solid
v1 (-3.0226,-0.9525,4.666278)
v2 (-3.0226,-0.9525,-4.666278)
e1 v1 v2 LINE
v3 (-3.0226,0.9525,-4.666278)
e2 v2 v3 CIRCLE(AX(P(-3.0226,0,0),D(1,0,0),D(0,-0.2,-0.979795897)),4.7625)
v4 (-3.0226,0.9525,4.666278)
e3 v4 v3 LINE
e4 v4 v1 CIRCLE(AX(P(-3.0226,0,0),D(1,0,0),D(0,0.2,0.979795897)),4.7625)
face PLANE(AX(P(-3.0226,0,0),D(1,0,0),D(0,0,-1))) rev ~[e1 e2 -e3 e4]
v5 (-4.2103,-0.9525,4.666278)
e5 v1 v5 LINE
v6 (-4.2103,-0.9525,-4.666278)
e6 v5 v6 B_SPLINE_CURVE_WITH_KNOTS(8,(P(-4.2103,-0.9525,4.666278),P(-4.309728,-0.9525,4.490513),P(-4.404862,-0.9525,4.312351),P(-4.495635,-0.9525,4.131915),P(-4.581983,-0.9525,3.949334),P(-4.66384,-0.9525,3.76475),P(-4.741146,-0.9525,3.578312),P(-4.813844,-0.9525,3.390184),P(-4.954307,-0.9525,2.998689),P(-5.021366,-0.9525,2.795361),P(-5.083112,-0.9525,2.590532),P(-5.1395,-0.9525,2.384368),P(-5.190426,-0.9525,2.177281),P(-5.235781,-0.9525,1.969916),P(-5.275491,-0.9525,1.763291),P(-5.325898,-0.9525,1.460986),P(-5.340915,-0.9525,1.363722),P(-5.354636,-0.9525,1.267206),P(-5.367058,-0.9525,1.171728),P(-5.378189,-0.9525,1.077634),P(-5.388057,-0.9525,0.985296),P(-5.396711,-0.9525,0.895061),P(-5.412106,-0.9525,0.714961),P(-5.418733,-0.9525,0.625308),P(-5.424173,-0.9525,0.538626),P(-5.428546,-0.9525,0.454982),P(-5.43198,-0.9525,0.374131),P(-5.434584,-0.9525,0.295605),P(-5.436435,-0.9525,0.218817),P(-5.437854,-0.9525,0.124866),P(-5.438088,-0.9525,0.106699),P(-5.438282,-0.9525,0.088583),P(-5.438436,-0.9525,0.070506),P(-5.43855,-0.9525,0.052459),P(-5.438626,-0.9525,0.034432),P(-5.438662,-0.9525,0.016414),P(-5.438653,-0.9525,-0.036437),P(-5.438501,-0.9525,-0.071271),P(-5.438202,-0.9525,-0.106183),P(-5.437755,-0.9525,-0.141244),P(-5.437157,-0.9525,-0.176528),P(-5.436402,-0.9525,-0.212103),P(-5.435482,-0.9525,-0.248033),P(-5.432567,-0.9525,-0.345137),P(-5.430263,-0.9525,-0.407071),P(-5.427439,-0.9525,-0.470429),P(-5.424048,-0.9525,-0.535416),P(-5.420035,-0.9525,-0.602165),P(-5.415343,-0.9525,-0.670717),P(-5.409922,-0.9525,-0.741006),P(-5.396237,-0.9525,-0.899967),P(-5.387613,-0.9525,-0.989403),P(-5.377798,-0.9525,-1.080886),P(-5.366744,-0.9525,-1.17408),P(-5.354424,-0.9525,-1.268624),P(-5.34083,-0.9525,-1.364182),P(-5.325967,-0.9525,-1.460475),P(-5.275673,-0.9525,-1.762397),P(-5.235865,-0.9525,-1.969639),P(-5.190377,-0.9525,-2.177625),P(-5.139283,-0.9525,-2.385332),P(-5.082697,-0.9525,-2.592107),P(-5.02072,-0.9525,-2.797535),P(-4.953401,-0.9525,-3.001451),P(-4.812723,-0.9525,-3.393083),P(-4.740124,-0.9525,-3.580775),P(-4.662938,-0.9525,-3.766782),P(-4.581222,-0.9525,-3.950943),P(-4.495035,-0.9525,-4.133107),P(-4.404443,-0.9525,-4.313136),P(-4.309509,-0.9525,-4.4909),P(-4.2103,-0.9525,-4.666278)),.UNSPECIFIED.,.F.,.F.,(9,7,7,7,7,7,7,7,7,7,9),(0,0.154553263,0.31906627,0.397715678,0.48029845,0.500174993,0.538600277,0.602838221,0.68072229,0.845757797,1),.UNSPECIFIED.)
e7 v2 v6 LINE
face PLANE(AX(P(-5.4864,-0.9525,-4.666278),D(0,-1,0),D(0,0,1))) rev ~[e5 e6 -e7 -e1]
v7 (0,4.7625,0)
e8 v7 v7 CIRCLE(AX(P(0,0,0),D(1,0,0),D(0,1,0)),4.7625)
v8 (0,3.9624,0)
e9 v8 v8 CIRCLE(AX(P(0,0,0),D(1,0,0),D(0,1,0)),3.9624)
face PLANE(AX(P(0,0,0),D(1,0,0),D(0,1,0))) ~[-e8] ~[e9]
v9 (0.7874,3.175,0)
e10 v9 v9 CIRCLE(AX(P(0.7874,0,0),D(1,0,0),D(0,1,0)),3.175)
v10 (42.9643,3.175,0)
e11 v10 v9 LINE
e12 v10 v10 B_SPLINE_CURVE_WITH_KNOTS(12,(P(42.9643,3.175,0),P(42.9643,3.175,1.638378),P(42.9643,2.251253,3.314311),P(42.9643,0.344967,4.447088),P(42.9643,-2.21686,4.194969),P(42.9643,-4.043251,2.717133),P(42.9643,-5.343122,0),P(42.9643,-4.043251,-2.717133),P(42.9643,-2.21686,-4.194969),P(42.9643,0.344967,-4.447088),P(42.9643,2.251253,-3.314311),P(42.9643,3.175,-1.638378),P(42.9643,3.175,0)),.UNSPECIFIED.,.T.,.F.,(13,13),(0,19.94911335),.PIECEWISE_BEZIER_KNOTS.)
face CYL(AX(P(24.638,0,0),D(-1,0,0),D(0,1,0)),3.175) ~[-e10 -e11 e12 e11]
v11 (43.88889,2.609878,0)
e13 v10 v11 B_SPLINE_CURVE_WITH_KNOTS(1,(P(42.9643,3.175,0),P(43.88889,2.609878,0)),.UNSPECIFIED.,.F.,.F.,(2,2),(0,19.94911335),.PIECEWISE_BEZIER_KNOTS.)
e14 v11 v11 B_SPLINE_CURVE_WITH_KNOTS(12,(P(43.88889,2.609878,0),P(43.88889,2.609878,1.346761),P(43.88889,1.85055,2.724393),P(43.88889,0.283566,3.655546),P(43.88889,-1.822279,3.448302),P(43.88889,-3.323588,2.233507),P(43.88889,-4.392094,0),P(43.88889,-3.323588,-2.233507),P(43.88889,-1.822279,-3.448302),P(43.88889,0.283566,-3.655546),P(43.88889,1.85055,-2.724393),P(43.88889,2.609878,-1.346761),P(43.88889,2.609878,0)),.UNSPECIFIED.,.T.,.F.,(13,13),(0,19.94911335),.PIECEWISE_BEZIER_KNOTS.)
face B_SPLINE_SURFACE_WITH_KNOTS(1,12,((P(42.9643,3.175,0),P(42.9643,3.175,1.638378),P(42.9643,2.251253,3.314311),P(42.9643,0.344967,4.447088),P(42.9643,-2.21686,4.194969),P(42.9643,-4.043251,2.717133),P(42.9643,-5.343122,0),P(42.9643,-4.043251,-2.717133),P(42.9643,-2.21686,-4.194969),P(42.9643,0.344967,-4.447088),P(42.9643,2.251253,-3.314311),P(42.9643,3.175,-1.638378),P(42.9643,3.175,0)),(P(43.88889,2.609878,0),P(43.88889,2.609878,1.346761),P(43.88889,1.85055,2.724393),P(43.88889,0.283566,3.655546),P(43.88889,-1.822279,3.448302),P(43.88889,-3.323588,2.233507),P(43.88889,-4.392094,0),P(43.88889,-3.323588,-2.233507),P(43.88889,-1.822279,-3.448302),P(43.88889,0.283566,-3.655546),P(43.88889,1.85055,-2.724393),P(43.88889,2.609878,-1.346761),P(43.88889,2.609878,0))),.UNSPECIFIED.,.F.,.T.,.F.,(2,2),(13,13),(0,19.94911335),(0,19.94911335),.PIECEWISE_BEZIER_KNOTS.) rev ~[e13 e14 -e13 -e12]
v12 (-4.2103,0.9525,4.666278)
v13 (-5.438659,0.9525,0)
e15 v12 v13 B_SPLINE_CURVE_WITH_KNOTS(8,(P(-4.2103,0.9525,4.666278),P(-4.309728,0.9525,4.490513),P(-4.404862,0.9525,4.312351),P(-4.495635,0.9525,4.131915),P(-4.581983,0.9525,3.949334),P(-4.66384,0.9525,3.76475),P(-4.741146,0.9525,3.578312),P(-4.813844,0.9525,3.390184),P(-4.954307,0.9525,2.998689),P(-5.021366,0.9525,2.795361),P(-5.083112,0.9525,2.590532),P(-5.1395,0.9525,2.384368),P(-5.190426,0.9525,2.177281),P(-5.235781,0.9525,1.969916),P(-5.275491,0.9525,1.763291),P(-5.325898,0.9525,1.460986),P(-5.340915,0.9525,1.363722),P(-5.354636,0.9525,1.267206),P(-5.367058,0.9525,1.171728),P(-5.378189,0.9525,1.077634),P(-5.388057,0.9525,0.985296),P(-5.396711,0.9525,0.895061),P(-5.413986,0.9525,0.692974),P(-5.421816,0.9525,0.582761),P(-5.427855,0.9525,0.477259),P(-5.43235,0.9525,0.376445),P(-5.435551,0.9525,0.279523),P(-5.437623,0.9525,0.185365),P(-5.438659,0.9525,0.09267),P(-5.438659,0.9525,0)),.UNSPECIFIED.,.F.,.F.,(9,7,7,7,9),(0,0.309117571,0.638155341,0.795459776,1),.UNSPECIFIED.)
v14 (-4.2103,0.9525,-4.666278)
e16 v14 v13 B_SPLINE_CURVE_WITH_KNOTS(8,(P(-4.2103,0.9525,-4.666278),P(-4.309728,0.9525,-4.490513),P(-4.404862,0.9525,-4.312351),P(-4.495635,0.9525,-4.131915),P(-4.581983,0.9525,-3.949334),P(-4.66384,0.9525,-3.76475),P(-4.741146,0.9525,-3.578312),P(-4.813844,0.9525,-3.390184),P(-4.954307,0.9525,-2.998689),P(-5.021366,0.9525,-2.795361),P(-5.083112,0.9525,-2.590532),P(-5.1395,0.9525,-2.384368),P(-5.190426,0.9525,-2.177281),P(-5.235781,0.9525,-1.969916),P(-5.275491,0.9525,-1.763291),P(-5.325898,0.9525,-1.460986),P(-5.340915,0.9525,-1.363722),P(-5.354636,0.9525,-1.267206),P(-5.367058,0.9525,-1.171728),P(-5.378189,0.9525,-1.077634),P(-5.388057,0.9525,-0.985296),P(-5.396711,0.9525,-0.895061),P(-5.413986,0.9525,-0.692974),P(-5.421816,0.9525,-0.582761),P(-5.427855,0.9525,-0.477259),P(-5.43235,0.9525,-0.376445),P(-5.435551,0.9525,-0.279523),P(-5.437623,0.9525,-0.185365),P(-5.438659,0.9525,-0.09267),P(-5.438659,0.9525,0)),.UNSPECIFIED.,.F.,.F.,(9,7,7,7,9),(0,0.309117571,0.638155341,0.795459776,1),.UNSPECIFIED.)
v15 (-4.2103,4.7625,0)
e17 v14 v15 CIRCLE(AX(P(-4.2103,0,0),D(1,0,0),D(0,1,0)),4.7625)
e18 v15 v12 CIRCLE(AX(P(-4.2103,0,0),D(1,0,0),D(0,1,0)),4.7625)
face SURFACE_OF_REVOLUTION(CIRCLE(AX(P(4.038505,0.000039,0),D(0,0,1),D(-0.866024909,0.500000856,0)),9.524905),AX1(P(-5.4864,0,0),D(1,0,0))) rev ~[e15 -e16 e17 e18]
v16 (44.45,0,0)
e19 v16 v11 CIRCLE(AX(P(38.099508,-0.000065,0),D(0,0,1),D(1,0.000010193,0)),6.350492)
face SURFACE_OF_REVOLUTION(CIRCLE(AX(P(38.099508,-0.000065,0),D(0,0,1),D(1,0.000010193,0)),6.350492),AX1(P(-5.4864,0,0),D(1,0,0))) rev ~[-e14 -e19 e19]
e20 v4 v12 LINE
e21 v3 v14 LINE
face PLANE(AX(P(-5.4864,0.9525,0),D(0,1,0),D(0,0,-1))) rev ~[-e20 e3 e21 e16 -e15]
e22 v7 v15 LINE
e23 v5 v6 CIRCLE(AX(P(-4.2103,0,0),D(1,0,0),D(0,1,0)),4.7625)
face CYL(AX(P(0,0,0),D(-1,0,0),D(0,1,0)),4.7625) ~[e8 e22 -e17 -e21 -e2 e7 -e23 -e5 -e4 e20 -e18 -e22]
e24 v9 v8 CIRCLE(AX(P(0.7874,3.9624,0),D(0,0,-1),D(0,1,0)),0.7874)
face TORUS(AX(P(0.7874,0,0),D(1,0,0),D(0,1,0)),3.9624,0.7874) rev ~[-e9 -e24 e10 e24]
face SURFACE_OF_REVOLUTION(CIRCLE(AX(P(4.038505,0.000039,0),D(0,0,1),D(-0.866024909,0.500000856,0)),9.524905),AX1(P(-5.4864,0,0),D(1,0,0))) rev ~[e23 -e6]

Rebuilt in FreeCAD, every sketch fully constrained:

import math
import FreeCAD as App
import Part
import Sketcher

V = App.Vector
Q = App.Units.Quantity


def edges_at(feature, points):
    """Names of the edges that pass closest to the given points."""
    edges = feature.Shape.Edges
    near = lambda p: min(range(len(edges)), key=lambda i: edges[i].distToShape(Part.Vertex(*p))[0])
    return sorted({f"Edge{near(p) + 1}" for p in points})


def add_polygon(sketch, points):
    """Adds a closed chain of lines whose ends are joined by coincident constraints."""
    first, n = sketch.GeometryCount, len(points)
    for a, b in zip(points, points[1:] + points[:1]):
        sketch.addGeometry(Part.LineSegment(App.Vector(*a, 0), App.Vector(*b, 0)), False)
    for i in range(n):
        sketch.addConstraint(Sketcher.Constraint("Coincident", first + i, 2, first + (i + 1) % n, 1))

doc = App.newDocument("Part")
body = doc.addObject("PartDesign::Body", "Body")

# Sketch on XY plane
sketch1 = body.newObject("Sketcher::SketchObject", "Sketch")
sketch1.AttachmentSupport = (doc.getObject("XY_Plane"), [""])
sketch1.MapMode = "FlatFace"
sketch1.addGeometry(Part.ArcOfCircle(Part.Circle(V(4, 0, 0), V(0, 0, 1), 9.5), math.radians(150), math.radians(180)), False)
sketch1.addGeometry(Part.LineSegment(V(-5.5, 0, 0), V(44.5, 0, 0)), False)
sketch1.addGeometry(Part.LineSegment(V(44.5, 0, 0), V(44.5, 3.2, 0)), False)
sketch1.addGeometry(Part.LineSegment(V(44.5, 3.2, 0), V(0, 3.2, 0)), False)
sketch1.addGeometry(Part.LineSegment(V(0, 3.2, 0), V(0, 4.8, 0)), False)
sketch1.addGeometry(Part.LineSegment(V(0, 4.8, 0), V(-4.2, 4.8, 0)), False)
sketch1.addConstraint(Sketcher.Constraint("Coincident", 0, 2, 1, 1))
sketch1.addConstraint(Sketcher.Constraint("Coincident", 1, 2, 2, 1))
sketch1.addConstraint(Sketcher.Constraint("Coincident", 2, 2, 3, 1))
sketch1.addConstraint(Sketcher.Constraint("Coincident", 3, 2, 4, 1))
sketch1.addConstraint(Sketcher.Constraint("Coincident", 4, 2, 5, 1))
sketch1.addConstraint(Sketcher.Constraint("Coincident", 5, 2, 0, 1))
sketch1.addConstraint(Sketcher.Constraint("Horizontal", 1))
sketch1.addConstraint(Sketcher.Constraint("Vertical", 2))
sketch1.addConstraint(Sketcher.Constraint("Horizontal", 3))
sketch1.addConstraint(Sketcher.Constraint("Vertical", 4))
sketch1.addConstraint(Sketcher.Constraint("Horizontal", 5))
sketch1.addConstraint(Sketcher.Constraint("PointOnObject", 0, 3, -1))
sketch1.addConstraint(Sketcher.Constraint("PointOnObject", 0, 2, -1))
sketch1.addConstraint(Sketcher.Constraint("PointOnObject", 3, 2, -2))
sketch1.addConstraint(Sketcher.Constraint("Radius", 0, Q("0.375 in")))
sketch1.addConstraint(Sketcher.Constraint("DistanceX", 3, 2, 3, 1, Q("1.75 in")))
sketch1.addConstraint(Sketcher.Constraint("DistanceX", 0, 2, -1, 1, Q("0.216 in")))
sketch1.addConstraint(Sketcher.Constraint("DistanceY", 2, 1, 2, 2, Q("0.125 in")))
sketch1.addConstraint(Sketcher.Constraint("DistanceY", 4, 1, 4, 2, Q("0.0625 in")))
revolution = body.newObject("PartDesign::Revolution", "Revolution")
revolution.Profile = sketch1
revolution.ReferenceAxis = (sketch1, ["H_Axis"])
revolution.Angle = 360

# Sketch on YZ plane
sketch2 = body.newObject("Sketcher::SketchObject", "Sketch001")
sketch2.AttachmentSupport = (doc.getObject("YZ_Plane"), [""])
sketch2.MapMode = "FlatFace"
sketch2.AttachmentOffset = App.Placement(V(0, 0, -0.216 * 25.4), App.Rotation())
add_polygon(sketch2, [(1, 4.8), (-1, 4.8), (-1, -4.8), (1, -4.8)])  # lines 0-3
sketch2.addConstraint(Sketcher.Constraint("Horizontal", 0))
sketch2.addConstraint(Sketcher.Constraint("Vertical", 1))
sketch2.addConstraint(Sketcher.Constraint("Horizontal", 2))
sketch2.addConstraint(Sketcher.Constraint("Vertical", 3))
sketch2.addConstraint(Sketcher.Constraint("Symmetric", 0, 2, 2, 2, -1, 1))
sketch2.addConstraint(Sketcher.Constraint("DistanceX", 0, 2, 0, 1, Q("0.075 in")))
sketch2.addConstraint(Sketcher.Constraint("DistanceY", 1, 2, 1, 1, Q("0.375 in")))
pocket1 = body.newObject("PartDesign::Pocket", "Pocket")
pocket1.Profile = sketch2
pocket1.Length = Q("0.097 in")
pocket1.Reversed = True

# Sketch on XY plane
sketch3 = body.newObject("Sketcher::SketchObject", "Sketch002")
sketch3.AttachmentSupport = (doc.getObject("XY_Plane"), [""])
sketch3.MapMode = "FlatFace"
sketch3.addGeometry(Part.ArcOfCircle(Part.Circle(V(38.1, 0, 0), V(0, 0, 1), 6.4), math.radians(0), math.radians(30)), False)
sketch3.addGeometry(Part.LineSegment(V(44.5, 0, 0), V(44.5, 3.2, 0)), False)
sketch3.addGeometry(Part.LineSegment(V(44.5, 3.2, 0), V(43.6, 3.2, 0)), False)
sketch3.addConstraint(Sketcher.Constraint("Tangent", 0, 1, 1, 1))
sketch3.addConstraint(Sketcher.Constraint("Coincident", 1, 2, 2, 1))
sketch3.addConstraint(Sketcher.Constraint("Coincident", 2, 2, 0, 2))
sketch3.addConstraint(Sketcher.Constraint("Vertical", 1))
sketch3.addConstraint(Sketcher.Constraint("Horizontal", 2))
sketch3.addConstraint(Sketcher.Constraint("PointOnObject", 0, 3, -1))
sketch3.addConstraint(Sketcher.Constraint("Radius", 0, Q("0.25 in")))
sketch3.addConstraint(Sketcher.Constraint("DistanceX", -1, 1, 0, 3, Q("1.5 in")))
sketch3.addConstraint(Sketcher.Constraint("DistanceY", 1, 1, 1, 2, Q("0.125 in")))
groove = body.newObject("PartDesign::Groove", "Groove")
groove.Profile = sketch3
groove.ReferenceAxis = (sketch3, ["H_Axis"])
groove.Angle = 360
doc.recompute()

chamfer = body.newObject("PartDesign::Chamfer", "Chamfer")
chamfer.Base = (groove, edges_at(groove, [(43.599, -3.175, 0)]))
chamfer.Size = Q("0.025 in")
doc.recompute()

fillet = body.newObject("PartDesign::Fillet", "Fillet")
fillet.Base = (chamfer, edges_at(chamfer, [(0, -3.175, 0)]))
fillet.Radius = Q("0.031 in")

doc.recompute()
